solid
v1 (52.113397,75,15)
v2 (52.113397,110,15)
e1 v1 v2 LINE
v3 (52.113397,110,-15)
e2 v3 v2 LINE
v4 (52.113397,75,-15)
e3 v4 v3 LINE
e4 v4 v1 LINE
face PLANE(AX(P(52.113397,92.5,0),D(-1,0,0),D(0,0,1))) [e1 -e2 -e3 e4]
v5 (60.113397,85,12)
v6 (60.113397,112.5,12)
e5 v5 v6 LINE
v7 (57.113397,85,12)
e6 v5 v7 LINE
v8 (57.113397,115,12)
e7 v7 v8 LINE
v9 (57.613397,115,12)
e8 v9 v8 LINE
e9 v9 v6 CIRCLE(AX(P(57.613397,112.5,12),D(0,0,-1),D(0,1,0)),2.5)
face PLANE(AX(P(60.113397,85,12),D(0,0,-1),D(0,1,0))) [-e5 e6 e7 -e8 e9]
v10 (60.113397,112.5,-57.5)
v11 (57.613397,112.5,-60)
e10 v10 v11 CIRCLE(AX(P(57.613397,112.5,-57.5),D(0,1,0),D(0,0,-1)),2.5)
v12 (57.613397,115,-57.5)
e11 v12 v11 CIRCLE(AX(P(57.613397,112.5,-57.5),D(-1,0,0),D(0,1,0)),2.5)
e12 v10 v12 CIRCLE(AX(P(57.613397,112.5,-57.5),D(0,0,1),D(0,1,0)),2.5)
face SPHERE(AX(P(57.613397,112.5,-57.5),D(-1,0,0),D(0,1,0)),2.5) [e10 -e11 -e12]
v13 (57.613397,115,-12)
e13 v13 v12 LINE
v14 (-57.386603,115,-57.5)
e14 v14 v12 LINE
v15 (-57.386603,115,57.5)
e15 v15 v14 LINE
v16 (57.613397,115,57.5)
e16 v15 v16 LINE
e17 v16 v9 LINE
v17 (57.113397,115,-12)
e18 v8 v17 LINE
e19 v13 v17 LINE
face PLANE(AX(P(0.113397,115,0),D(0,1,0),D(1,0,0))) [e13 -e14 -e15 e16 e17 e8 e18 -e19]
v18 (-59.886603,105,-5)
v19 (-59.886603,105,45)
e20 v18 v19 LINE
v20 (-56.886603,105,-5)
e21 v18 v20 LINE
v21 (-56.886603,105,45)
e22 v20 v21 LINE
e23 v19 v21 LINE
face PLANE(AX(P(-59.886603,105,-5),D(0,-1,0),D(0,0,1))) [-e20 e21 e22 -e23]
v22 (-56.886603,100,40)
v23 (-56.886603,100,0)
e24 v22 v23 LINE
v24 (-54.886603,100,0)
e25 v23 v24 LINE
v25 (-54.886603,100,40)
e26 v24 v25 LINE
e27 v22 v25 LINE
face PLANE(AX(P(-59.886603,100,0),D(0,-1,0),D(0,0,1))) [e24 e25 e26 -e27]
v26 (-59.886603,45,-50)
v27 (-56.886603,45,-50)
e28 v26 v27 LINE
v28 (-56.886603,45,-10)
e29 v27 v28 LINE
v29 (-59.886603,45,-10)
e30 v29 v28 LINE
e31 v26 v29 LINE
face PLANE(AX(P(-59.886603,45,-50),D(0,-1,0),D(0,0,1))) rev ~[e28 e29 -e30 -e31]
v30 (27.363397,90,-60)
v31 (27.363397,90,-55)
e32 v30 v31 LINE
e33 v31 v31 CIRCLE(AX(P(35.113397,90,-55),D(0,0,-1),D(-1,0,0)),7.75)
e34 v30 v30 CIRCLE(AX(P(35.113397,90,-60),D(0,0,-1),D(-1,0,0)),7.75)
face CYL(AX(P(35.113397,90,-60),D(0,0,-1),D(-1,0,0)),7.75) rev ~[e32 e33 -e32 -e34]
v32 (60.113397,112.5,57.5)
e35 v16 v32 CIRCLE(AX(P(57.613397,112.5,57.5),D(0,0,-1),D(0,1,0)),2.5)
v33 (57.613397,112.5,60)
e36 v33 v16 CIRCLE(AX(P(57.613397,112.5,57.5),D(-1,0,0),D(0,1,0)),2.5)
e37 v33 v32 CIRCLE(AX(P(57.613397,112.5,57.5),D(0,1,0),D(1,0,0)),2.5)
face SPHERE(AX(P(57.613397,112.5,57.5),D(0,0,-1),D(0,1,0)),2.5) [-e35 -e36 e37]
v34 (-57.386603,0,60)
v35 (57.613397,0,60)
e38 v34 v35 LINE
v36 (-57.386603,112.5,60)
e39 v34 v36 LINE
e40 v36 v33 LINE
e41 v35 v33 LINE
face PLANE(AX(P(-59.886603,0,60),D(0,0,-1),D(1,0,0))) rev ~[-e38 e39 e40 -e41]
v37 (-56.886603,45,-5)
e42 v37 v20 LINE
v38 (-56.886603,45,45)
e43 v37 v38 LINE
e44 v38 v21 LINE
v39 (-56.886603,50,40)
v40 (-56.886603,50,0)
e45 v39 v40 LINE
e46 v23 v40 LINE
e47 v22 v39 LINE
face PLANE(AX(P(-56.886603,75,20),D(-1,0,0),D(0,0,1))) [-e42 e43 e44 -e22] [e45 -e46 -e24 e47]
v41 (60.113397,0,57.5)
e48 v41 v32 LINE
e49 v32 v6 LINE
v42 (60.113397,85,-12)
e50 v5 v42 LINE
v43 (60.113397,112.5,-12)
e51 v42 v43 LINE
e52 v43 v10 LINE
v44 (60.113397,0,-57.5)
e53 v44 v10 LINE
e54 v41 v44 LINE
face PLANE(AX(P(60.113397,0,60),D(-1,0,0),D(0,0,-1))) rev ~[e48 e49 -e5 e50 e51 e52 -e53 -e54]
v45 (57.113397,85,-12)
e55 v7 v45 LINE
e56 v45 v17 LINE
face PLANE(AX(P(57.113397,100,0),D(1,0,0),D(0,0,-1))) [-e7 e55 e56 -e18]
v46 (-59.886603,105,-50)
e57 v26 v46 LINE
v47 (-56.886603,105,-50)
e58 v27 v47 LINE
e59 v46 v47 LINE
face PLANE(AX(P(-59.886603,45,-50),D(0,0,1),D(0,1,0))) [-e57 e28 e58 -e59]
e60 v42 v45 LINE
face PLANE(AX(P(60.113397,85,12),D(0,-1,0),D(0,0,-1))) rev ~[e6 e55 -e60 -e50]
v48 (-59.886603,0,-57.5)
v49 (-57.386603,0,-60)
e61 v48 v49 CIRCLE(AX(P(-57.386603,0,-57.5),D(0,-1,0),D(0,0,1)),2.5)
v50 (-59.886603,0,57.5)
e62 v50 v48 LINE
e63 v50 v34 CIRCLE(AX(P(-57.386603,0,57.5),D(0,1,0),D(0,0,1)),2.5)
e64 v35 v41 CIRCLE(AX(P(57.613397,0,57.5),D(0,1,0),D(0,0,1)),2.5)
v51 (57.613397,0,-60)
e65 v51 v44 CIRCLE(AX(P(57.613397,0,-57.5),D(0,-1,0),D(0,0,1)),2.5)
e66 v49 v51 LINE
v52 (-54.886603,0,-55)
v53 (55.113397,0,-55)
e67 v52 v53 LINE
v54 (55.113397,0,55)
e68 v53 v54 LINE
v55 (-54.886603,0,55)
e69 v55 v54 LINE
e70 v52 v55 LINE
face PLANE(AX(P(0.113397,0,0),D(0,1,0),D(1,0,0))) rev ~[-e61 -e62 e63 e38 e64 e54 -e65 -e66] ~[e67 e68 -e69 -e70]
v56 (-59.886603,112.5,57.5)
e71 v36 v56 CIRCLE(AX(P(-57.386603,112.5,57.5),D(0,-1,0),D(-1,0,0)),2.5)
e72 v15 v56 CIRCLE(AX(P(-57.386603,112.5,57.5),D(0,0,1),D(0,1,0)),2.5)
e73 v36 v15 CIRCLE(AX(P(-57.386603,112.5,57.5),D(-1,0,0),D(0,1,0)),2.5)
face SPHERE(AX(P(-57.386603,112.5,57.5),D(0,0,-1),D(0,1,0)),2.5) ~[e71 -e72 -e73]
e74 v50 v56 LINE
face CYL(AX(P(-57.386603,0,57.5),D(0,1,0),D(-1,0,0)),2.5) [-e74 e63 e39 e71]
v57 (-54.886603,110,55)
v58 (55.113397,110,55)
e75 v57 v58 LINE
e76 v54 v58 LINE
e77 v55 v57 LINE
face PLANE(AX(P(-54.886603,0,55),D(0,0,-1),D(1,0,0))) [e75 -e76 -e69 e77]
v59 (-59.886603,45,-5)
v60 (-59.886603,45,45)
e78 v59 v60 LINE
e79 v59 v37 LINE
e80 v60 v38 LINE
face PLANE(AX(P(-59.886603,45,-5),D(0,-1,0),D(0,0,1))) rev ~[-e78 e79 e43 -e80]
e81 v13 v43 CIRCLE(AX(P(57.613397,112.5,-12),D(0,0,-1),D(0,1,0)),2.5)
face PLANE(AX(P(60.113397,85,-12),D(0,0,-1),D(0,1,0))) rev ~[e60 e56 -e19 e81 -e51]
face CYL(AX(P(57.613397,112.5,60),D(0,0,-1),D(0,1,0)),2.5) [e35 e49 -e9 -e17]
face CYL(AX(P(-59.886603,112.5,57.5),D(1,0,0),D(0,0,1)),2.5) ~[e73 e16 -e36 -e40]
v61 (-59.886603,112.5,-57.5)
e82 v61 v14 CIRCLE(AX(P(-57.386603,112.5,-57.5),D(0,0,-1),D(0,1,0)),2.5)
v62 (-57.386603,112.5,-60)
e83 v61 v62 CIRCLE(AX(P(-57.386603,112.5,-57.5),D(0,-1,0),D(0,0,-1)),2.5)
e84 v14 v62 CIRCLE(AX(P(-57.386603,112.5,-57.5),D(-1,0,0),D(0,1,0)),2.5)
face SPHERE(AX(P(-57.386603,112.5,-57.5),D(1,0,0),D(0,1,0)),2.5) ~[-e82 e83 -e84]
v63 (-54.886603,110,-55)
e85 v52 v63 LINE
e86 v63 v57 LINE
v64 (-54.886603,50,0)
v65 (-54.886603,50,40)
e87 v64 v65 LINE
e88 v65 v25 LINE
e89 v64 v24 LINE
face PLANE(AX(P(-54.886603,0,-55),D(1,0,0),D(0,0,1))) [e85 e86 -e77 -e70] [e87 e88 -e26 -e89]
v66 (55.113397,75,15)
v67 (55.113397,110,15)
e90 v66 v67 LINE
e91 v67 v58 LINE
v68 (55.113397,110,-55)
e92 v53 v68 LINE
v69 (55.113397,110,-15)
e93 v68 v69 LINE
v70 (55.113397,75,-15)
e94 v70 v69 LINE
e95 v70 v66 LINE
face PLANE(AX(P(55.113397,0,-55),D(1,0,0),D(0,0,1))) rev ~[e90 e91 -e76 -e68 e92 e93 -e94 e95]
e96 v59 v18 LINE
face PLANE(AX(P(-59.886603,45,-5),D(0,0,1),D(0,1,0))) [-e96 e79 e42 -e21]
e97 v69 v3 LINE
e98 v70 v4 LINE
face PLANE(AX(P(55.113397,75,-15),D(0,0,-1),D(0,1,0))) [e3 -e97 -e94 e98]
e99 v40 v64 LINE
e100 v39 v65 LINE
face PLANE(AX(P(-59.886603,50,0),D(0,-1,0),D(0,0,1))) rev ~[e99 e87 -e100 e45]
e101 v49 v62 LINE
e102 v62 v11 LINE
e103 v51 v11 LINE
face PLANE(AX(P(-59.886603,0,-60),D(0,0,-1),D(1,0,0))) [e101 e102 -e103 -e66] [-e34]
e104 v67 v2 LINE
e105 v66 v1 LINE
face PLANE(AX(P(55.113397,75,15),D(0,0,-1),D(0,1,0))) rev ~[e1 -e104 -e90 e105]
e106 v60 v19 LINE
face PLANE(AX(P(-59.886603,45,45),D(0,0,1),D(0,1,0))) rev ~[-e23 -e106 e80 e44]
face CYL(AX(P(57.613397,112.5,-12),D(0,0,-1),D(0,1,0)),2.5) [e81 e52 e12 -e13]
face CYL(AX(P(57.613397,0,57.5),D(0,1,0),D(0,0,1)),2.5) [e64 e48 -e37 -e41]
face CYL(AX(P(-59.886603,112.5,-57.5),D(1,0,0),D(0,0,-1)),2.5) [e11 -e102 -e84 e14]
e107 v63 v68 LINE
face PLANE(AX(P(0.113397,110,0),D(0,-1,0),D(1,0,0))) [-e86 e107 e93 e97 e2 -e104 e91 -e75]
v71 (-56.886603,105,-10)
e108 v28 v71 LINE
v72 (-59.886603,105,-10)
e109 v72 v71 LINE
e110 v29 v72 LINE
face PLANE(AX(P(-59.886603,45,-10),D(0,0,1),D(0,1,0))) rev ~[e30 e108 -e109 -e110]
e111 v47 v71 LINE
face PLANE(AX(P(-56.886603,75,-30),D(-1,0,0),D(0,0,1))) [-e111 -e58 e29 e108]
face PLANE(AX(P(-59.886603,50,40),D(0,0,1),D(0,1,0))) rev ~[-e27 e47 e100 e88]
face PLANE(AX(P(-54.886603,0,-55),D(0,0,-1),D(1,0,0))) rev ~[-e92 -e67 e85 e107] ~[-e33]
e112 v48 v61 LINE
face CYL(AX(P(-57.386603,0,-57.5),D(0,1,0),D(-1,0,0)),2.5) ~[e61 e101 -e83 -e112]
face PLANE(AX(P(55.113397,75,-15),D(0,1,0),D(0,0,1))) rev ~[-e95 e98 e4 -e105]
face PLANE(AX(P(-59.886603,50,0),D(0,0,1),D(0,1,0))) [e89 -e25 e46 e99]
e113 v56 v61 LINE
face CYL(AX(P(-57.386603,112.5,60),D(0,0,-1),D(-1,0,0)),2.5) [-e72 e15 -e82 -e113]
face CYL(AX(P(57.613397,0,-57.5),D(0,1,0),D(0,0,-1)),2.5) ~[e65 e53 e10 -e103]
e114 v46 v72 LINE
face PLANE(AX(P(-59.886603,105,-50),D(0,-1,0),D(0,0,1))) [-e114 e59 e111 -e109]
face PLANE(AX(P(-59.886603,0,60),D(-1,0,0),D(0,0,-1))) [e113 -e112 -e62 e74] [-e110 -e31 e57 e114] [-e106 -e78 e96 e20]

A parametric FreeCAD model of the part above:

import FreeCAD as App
import Part
import Sketcher

V = App.Vector
Q = App.Units.Quantity


def edges_at(feature, points):
    """Names of the edges that pass closest to the given points."""
    edges = feature.Shape.Edges
    near = lambda p: min(range(len(edges)), key=lambda i: edges[i].distToShape(Part.Vertex(*p))[0])
    return sorted({f"Edge{near(p) + 1}" for p in points})


def add_polygon(sketch, points):
    """Adds a closed chain of lines whose ends are joined by coincident constraints."""
    first, n = sketch.GeometryCount, len(points)
    for a, b in zip(points, points[1:] + points[:1]):
        sketch.addGeometry(Part.LineSegment(App.Vector(*a, 0), App.Vector(*b, 0)), False)
    for i in range(n):
        sketch.addConstraint(Sketcher.Constraint("Coincident", first + i, 2, first + (i + 1) % n, 1))

doc = App.newDocument("Part")
body = doc.addObject("PartDesign::Body", "Body")

# Sketch on XZ plane
sketch1 = body.newObject("Sketcher::SketchObject", "Sketch")
sketch1.AttachmentSupport = (doc.getObject("XZ_Plane"), [""])
sketch1.MapMode = "FlatFace"
add_polygon(sketch1, [(-60, -60), (-60, 60), (60, 60), (60, -60)])  # lines 0-3
sketch1.addConstraint([
    Sketcher.Constraint("Vertical", 0),
    Sketcher.Constraint("Horizontal", 1),
    Sketcher.Constraint("Vertical", 2),
    Sketcher.Constraint("Horizontal", 3),
    Sketcher.Constraint("Equal", 3, 0),
    Sketcher.Constraint("DistanceX", 1, 1, 1, 2, Q("120 mm")),
    Sketcher.Constraint("DistanceY", -1, 1, 0, 2, Q("60 mm")),
    Sketcher.Constraint("DistanceX", 0, 2, -1, 1, Q("59.886603 mm")),
])
pad1 = body.newObject("PartDesign::Pad", "Pad")
pad1.Profile = sketch1
pad1.Length = 115
pad1.Reversed = True

# Sketch on XZ plane
sketch2 = body.newObject("Sketcher::SketchObject", "Sketch001")
sketch2.AttachmentSupport = (doc.getObject("XZ_Plane"), [""])
sketch2.MapMode = "FlatFace"
add_polygon(sketch2, [(-55, 55), (-55, -55), (55, -55), (55, 55)])  # lines 0-3
sketch2.addConstraint([
    Sketcher.Constraint("Vertical", 0),
    Sketcher.Constraint("Horizontal", 1),
    Sketcher.Constraint("Vertical", 2),
    Sketcher.Constraint("Horizontal", 3),
    Sketcher.Constraint("Equal", 3, 0),
    Sketcher.Constraint("DistanceX", 1, 1, 1, 2, Q("110 mm")),
    Sketcher.Constraint("DistanceY", 0, 2, -1, 1, Q("55 mm")),
    Sketcher.Constraint("DistanceX", 0, 2, -1, 1, Q("54.886603 mm")),
])
pocket1 = body.newObject("PartDesign::Pocket", "Pocket")
pocket1.Profile = sketch2
pocket1.Length = 110

# Sketch on YZ plane
sketch3 = body.newObject("Sketcher::SketchObject", "Sketch002")
sketch3.AttachmentSupport = (doc.getObject("YZ_Plane"), [""])
sketch3.MapMode = "FlatFace"
sketch3.AttachmentOffset = App.Placement(V(0, 0, 60.113397), App.Rotation())
add_polygon(sketch3, [(115, 12), (85, 12), (85, -12), (115, -12)])  # lines 0-3
sketch3.addConstraint([
    Sketcher.Constraint("Horizontal", 0),
    Sketcher.Constraint("Vertical", 1),
    Sketcher.Constraint("Horizontal", 2),
    Sketcher.Constraint("Vertical", 3),
    Sketcher.Constraint("DistanceX", 0, 2, 0, 1, Q("30 mm")),
    Sketcher.Constraint("DistanceY", 1, 2, 1, 1, Q("24 mm")),
    Sketcher.Constraint("DistanceX", -1, 1, 0, 2, Q("85 mm")),
    Sketcher.Constraint("DistanceY", -1, 1, 0, 2, Q("12 mm")),
])
pocket2 = body.newObject("PartDesign::Pocket", "Pocket001")
pocket2.Profile = sketch3
pocket2.Length = 3

# Sketch on XY plane
sketch4 = body.newObject("Sketcher::SketchObject", "Sketch003")
sketch4.AttachmentSupport = (doc.getObject("XY_Plane"), [""])
sketch4.MapMode = "FlatFace"
sketch4.AttachmentOffset = App.Placement(V(0, 0, -60), App.Rotation())
sketch4.addGeometry(Part.Circle(V(35, 90, 0), V(0, 0, 1), 8), False)
sketch4.addConstraint([
    Sketcher.Constraint("Diameter", 0, Q("15.5 mm")),
    Sketcher.Constraint("DistanceY", -1, 1, 0, 3, Q("90 mm")),
    Sketcher.Constraint("DistanceX", -1, 1, 0, 3, Q("35.113397 mm")),
])
pocket3 = body.newObject("PartDesign::Pocket", "Pocket002")
pocket3.Profile = sketch4
pocket3.Length = 6
pocket3.Reversed = True

# Sketch on YZ plane
sketch5 = body.newObject("Sketcher::SketchObject", "Sketch004")
sketch5.AttachmentSupport = (doc.getObject("YZ_Plane"), [""])
sketch5.MapMode = "FlatFace"
sketch5.AttachmentOffset = App.Placement(V(0, 0, 55.113397), App.Rotation())
add_polygon(sketch5, [(110, -15), (75, -15), (75, 15), (110, 15)])  # lines 0-3
sketch5.addConstraint([
    Sketcher.Constraint("Horizontal", 0),
    Sketcher.Constraint("Vertical", 1),
    Sketcher.Constraint("Horizontal", 2),
    Sketcher.Constraint("Vertical", 3),
    Sketcher.Constraint("DistanceX", 0, 2, 0, 1, Q("35 mm")),
    Sketcher.Constraint("DistanceY", 1, 1, 1, 2, Q("30 mm")),
    Sketcher.Constraint("DistanceX", -1, 1, 0, 2, Q("75 mm")),
    Sketcher.Constraint("DistanceY", 0, 2, -1, 1, Q("15 mm")),
])
pad2 = body.newObject("PartDesign::Pad", "Pad001")
pad2.Profile = sketch5
pad2.Length = 3
pad2.Reversed = True
doc.recompute()

fillet = body.newObject("PartDesign::Fillet", "Fillet")
fillet.Base = (pad2, edges_at(pad2, [
    (60.113, 115, 36),
    (0.113, 115, -60),
    (60.113, 115, -36),
    (-59.887, 115, 0),
    (0.113, 115, 60),
    (-59.887, 57.5, -60),
    (60.113, 57.5, -60),
    (60.113, 57.5, 60),
    (-59.887, 57.5, 60),
]))
fillet.Radius = 2.5

# Sketch on YZ plane
sketch6 = body.newObject("Sketcher::SketchObject", "Sketch005")
sketch6.AttachmentSupport = (doc.getObject("YZ_Plane"), [""])
sketch6.MapMode = "FlatFace"
sketch6.AttachmentOffset = App.Placement(V(0, 0, -59.886603), App.Rotation())
add_polygon(sketch6, [(100, 0), (50, 0), (50, 40), (100, 40)])  # lines 0-3
sketch6.addConstraint([
    Sketcher.Constraint("Horizontal", 0),
    Sketcher.Constraint("Vertical", 1),
    Sketcher.Constraint("Horizontal", 2),
    Sketcher.Constraint("Vertical", 3),
    Sketcher.Constraint("PointOnObject", 0, 2, -1),
    Sketcher.Constraint("DistanceX", 0, 2, 0, 1, Q("50 mm")),
    Sketcher.Constraint("DistanceY", 1, 1, 1, 2, Q("40 mm")),
    Sketcher.Constraint("DistanceX", -1, 1, 0, 2, Q("50 mm")),
])
pocket4 = body.newObject("PartDesign::Pocket", "Pocket003")
pocket4.Profile = sketch6
pocket4.Length = 5
pocket4.Reversed = True

# Sketch on YZ plane
sketch7 = body.newObject("Sketcher::SketchObject", "Sketch006")
sketch7.AttachmentSupport = (doc.getObject("YZ_Plane"), [""])
sketch7.MapMode = "FlatFace"
sketch7.AttachmentOffset = App.Placement(V(0, 0, -59.886603), App.Rotation())
add_polygon(sketch7, [(105, -5), (45, -5), (45, 45), (105, 45)])  # lines 0-3
sketch7.addConstraint([
    Sketcher.Constraint("Horizontal", 0),
    Sketcher.Constraint("Vertical", 1),
    Sketcher.Constraint("Horizontal", 2),
    Sketcher.Constraint("Vertical", 3),
    Sketcher.Constraint("DistanceX", 0, 2, 0, 1, Q("60 mm")),
    Sketcher.Constraint("DistanceY", 1, 1, 1, 2, Q("50 mm")),
    Sketcher.Constraint("DistanceX", -1, 1, 0, 2, Q("45 mm")),
    Sketcher.Constraint("DistanceY", 0, 2, -1, 1, Q("5 mm")),
])
pocket5 = body.newObject("PartDesign::Pocket", "Pocket004")
pocket5.Profile = sketch7
pocket5.Length = 3
pocket5.Reversed = True

# Sketch on YZ plane
sketch8 = body.newObject("Sketcher::SketchObject", "Sketch007")
sketch8.AttachmentSupport = (doc.getObject("YZ_Plane"), [""])
sketch8.MapMode = "FlatFace"
sketch8.AttachmentOffset = App.Placement(V(0, 0, -59.886603), App.Rotation())
add_polygon(sketch8, [(105, -50), (45, -50), (45, -10), (105, -10)])  # lines 0-3
sketch8.addConstraint([
    Sketcher.Constraint("Horizontal", 0),
    Sketcher.Constraint("Vertical", 1),
    Sketcher.Constraint("Horizontal", 2),
    Sketcher.Constraint("Vertical", 3),
    Sketcher.Constraint("DistanceX", 0, 2, 0, 1, Q("60 mm")),
    Sketcher.Constraint("DistanceY", 1, 1, 1, 2, Q("40 mm")),
    Sketcher.Constraint("DistanceX", -1, 1, 0, 2, Q("45 mm")),
    Sketcher.Constraint("DistanceY", 0, 2, -1, 1, Q("50 mm")),
])
pocket6 = body.newObject("PartDesign::Pocket", "Pocket005")
pocket6.Profile = sketch8
pocket6.Length = 3
pocket6.Reversed = True

doc.recompute()
